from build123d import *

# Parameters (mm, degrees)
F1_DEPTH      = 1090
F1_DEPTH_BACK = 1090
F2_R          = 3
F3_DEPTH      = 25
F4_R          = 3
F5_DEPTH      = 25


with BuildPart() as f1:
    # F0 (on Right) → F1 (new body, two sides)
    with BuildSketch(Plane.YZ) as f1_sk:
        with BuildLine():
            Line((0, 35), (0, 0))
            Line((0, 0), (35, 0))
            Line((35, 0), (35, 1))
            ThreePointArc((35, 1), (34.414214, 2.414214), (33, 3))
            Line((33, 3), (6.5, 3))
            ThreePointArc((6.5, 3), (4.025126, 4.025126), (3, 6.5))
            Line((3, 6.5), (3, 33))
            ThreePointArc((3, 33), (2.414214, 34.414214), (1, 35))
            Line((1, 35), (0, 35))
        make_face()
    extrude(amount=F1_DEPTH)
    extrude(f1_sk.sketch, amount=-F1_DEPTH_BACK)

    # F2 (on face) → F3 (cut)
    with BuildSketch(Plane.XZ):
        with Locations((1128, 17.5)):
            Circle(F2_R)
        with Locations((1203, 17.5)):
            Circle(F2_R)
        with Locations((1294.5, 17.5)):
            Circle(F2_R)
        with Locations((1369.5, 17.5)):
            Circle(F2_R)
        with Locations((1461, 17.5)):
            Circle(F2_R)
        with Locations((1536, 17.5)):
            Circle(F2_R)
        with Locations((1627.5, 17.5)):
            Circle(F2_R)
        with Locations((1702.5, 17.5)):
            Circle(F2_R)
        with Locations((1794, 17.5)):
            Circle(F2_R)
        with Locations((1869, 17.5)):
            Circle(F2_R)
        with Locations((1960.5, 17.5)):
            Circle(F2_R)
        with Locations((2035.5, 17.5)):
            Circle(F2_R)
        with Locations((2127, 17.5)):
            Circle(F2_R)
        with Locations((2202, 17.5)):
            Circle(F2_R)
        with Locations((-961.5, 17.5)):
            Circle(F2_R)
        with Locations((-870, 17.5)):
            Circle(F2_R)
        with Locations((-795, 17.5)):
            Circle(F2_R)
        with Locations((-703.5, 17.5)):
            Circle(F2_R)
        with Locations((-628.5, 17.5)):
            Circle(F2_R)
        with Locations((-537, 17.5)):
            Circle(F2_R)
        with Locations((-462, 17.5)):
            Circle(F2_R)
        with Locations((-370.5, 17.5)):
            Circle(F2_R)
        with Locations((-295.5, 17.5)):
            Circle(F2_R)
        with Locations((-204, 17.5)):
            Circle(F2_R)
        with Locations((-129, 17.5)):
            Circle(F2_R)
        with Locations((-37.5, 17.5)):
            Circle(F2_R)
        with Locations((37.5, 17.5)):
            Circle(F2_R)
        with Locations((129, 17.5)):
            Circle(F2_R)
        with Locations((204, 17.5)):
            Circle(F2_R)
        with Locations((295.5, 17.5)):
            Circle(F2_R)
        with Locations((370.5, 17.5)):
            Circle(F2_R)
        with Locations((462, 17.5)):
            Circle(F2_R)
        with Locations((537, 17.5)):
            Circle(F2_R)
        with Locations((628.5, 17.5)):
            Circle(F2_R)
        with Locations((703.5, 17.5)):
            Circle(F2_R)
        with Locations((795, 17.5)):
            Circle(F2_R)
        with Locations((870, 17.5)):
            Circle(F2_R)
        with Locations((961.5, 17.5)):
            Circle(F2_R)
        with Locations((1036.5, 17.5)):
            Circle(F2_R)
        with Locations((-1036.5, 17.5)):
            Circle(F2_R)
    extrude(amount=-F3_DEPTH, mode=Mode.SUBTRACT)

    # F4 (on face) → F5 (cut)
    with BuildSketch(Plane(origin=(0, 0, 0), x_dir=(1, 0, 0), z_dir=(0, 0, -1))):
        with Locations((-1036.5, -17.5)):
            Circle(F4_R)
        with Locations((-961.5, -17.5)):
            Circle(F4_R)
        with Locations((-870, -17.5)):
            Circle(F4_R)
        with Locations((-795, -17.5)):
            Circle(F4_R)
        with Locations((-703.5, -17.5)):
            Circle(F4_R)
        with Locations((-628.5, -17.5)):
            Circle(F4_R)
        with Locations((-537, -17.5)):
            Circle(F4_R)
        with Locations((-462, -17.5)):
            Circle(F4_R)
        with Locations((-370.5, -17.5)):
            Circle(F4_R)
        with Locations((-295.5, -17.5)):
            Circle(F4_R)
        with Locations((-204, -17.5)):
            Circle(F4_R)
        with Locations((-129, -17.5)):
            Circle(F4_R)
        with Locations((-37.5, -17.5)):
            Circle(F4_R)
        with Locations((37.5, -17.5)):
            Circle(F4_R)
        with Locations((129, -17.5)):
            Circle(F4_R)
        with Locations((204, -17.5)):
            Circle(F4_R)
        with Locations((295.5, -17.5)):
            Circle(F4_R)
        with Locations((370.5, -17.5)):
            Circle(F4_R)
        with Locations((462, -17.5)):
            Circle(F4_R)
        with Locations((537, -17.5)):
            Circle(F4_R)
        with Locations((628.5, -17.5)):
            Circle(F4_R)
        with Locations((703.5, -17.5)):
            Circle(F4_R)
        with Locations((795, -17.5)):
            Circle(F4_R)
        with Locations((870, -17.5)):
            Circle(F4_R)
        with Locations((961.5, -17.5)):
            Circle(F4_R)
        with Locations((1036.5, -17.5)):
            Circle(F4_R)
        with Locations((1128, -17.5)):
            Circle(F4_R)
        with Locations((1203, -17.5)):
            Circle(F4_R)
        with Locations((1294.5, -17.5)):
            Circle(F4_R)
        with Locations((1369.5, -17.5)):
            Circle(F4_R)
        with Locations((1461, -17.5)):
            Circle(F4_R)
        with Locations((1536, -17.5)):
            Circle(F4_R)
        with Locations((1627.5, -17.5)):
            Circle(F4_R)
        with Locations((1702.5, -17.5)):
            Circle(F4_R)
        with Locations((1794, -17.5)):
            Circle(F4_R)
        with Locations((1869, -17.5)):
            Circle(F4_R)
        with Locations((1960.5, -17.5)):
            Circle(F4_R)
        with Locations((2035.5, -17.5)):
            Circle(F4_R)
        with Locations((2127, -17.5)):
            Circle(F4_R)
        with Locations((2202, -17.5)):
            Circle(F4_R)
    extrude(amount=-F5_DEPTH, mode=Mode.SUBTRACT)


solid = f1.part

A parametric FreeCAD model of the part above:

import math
import FreeCAD as App
import Part
import Sketcher

V = App.Vector
Q = App.Units.Quantity

doc = App.newDocument("Part")
body = doc.addObject("PartDesign::Body", "Body")

# Sketch on YZ plane
sketch1 = body.newObject("Sketcher::SketchObject", "Sketch")
sketch1.AttachmentSupport = (doc.getObject("YZ_Plane"), [""])
sketch1.MapMode = "FlatFace"
sketch1.addGeometry(Part.LineSegment(V(0, 35, 0), V(0, 0, 0)), False)
sketch1.addGeometry(Part.LineSegment(V(0, 0, 0), V(35, 0, 0)), False)
sketch1.addGeometry(Part.LineSegment(V(35, 0, 0), V(35, 1, 0)), False)
sketch1.addGeometry(Part.ArcOfCircle(Part.Circle(V(33, 1, 0), V(0, 0, 1), 2), math.radians(0), math.radians(90)), False)
sketch1.addGeometry(Part.LineSegment(V(33, 3, 0), V(6.5, 3, 0)), False)
sketch1.addGeometry(Part.ArcOfCircle(Part.Circle(V(6.5, 6.5, 0), V(0, 0, 1), 3.5), math.radians(180), math.radians(270)), False)
sketch1.addGeometry(Part.LineSegment(V(3, 6.5, 0), V(3, 33, 0)), False)
sketch1.addGeometry(Part.ArcOfCircle(Part.Circle(V(1, 33, 0), V(0, 0, 1), 2), math.radians(0), math.radians(90)), False)
sketch1.addGeometry(Part.LineSegment(V(1, 35, 0), V(0, 35, 0)), False)
sketch1.addConstraint(Sketcher.Constraint("Coincident", 0, 2, 1, 1))
sketch1.addConstraint(Sketcher.Constraint("Coincident", 1, 2, 2, 1))
sketch1.addConstraint(Sketcher.Constraint("Tangent", 2, 2, 3, 1))
sketch1.addConstraint(Sketcher.Constraint("Tangent", 3, 2, 4, 1))
sketch1.addConstraint(Sketcher.Constraint("Tangent", 4, 2, 5, 2))
sketch1.addConstraint(Sketcher.Constraint("Tangent", 5, 1, 6, 1))
sketch1.addConstraint(Sketcher.Constraint("Tangent", 6, 2, 7, 1))
sketch1.addConstraint(Sketcher.Constraint("Tangent", 7, 2, 8, 1))
sketch1.addConstraint(Sketcher.Constraint("Coincident", 8, 2, 0, 1))
sketch1.addConstraint(Sketcher.Constraint("Vertical", 0))
sketch1.addConstraint(Sketcher.Constraint("Horizontal", 1))
sketch1.addConstraint(Sketcher.Constraint("Vertical", 2))
sketch1.addConstraint(Sketcher.Constraint("Horizontal", 4))
sketch1.addConstraint(Sketcher.Constraint("Vertical", 6))
sketch1.addConstraint(Sketcher.Constraint("Horizontal", 8))
sketch1.addConstraint(Sketcher.Constraint("Coincident", 0, 2, -1, 1))
sketch1.addConstraint(Sketcher.Constraint("Equal", 3, 7))
sketch1.addConstraint(Sketcher.Constraint("Equal", 1, 0))
sketch1.addConstraint(Sketcher.Constraint("Equal", 8, 2))
sketch1.addConstraint(Sketcher.Constraint("Radius", 3, Q("1.999999 mm")))
sketch1.addConstraint(Sketcher.Constraint("Radius", 5, Q("3.499999 mm")))
sketch1.addConstraint(Sketcher.Constraint("DistanceX", 1, 1, 1, 2, Q("35 mm")))
sketch1.addConstraint(Sketcher.Constraint("DistanceX", 8, 2, 8, 1, Q("1 mm")))
pad1 = body.newObject("PartDesign::Pad", "Pad")
pad1.Profile = sketch1
pad1.Type = "TwoLengths"
pad1.Length = 1090
pad1.Length2 = 1090

# Sketch on XZ plane
sketch2 = body.newObject("Sketcher::SketchObject", "Sketch001")
sketch2.AttachmentSupport = (doc.getObject("XZ_Plane"), [""])
sketch2.MapMode = "FlatFace"
sketch2.addGeometry(Part.Circle(V(1128, 17.5, 0), V(0, 0, 1), 3), False)
sketch2.addGeometry(Part.Circle(V(1203, 17.5, 0), V(0, 0, 1), 3), False)
sketch2.addGeometry(Part.Circle(V(1294.5, 17.5, 0), V(0, 0, 1), 3), False)
sketch2.addGeometry(Part.Circle(V(1369.5, 17.5, 0), V(0, 0, 1), 3), False)
sketch2.addGeometry(Part.Circle(V(1461, 17.5, 0), V(0, 0, 1), 3), False)
sketch2.addGeometry(Part.Circle(V(1536, 17.5, 0), V(0, 0, 1), 3), False)
sketch2.addGeometry(Part.Circle(V(1627.5, 17.5, 0), V(0, 0, 1), 3), False)
sketch2.addGeometry(Part.Circle(V(1702.5, 17.5, 0), V(0, 0, 1), 3), False)
sketch2.addGeometry(Part.Circle(V(1794, 17.5, 0), V(0, 0, 1), 3), False)
sketch2.addGeometry(Part.Circle(V(1869, 17.5, 0), V(0, 0, 1), 3), False)
sketch2.addGeometry(Part.Circle(V(1960.5, 17.5, 0), V(0, 0, 1), 3), False)
sketch2.addGeometry(Part.Circle(V(2035.5, 17.5, 0), V(0, 0, 1), 3), False)
sketch2.addGeometry(Part.Circle(V(2127, 17.5, 0), V(0, 0, 1), 3), False)
sketch2.addGeometry(Part.Circle(V(2202, 17.5, 0), V(0, 0, 1), 3), False)
sketch2.addGeometry(Part.Circle(V(-961.5, 17.5, 0), V(0, 0, 1), 3), False)
sketch2.addGeometry(Part.Circle(V(-870, 17.5, 0), V(0, 0, 1), 3), False)
sketch2.addGeometry(Part.Circle(V(-795, 17.5, 0), V(0, 0, 1), 3), False)
sketch2.addGeometry(Part.Circle(V(-703.5, 17.5, 0), V(0, 0, 1), 3), False)
sketch2.addGeometry(Part.Circle(V(-628.5, 17.5, 0), V(0, 0, 1), 3), False)
sketch2.addGeometry(Part.Circle(V(-537, 17.5, 0), V(0, 0, 1), 3), False)
sketch2.addGeometry(Part.Circle(V(-462, 17.5, 0), V(0, 0, 1), 3), False)
sketch2.addGeometry(Part.Circle(V(-370.5, 17.5, 0), V(0, 0, 1), 3), False)
sketch2.addGeometry(Part.Circle(V(-295.5, 17.5, 0), V(0, 0, 1), 3), False)
sketch2.addGeometry(Part.Circle(V(-204, 17.5, 0), V(0, 0, 1), 3), False)
sketch2.addGeometry(Part.Circle(V(-129, 17.5, 0), V(0, 0, 1), 3), False)
sketch2.addGeometry(Part.Circle(V(-37.5, 17.5, 0), V(0, 0, 1), 3), False)
sketch2.addGeometry(Part.Circle(V(37.5, 17.5, 0), V(0, 0, 1), 3), False)
sketch2.addGeometry(Part.Circle(V(129, 17.5, 0), V(0, 0, 1), 3), False)
sketch2.addGeometry(Part.Circle(V(204, 17.5, 0), V(0, 0, 1), 3), False)
sketch2.addGeometry(Part.Circle(V(295.5, 17.5, 0), V(0, 0, 1), 3), False)
sketch2.addGeometry(Part.Circle(V(370.5, 17.5, 0), V(0, 0, 1), 3), False)
sketch2.addGeometry(Part.Circle(V(462, 17.5, 0), V(0, 0, 1), 3), False)
sketch2.addGeometry(Part.Circle(V(537, 17.5, 0), V(0, 0, 1), 3), False)
sketch2.addGeometry(Part.Circle(V(628.5, 17.5, 0), V(0, 0, 1), 3), False)
sketch2.addGeometry(Part.Circle(V(703.5, 17.5, 0), V(0, 0, 1), 3), False)
sketch2.addGeometry(Part.Circle(V(795, 17.5, 0), V(0, 0, 1), 3), False)
sketch2.addGeometry(Part.Circle(V(870, 17.5, 0), V(0, 0, 1), 3), False)
sketch2.addGeometry(Part.Circle(V(961.5, 17.5, 0), V(0, 0, 1), 3), False)
sketch2.addGeometry(Part.Circle(V(1036.5, 17.5, 0), V(0, 0, 1), 3), False)
sketch2.addGeometry(Part.Circle(V(-1036.5, 17.5, 0), V(0, 0, 1), 3), False)
sketch2.addConstraint(Sketcher.Constraint("Equal", 0, 1))
sketch2.addConstraint(Sketcher.Constraint("Equal", 1, 2))
sketch2.addConstraint(Sketcher.Constraint("Equal", 2, 3))
sketch2.addConstraint(Sketcher.Constraint("Equal", 3, 4))
sketch2.addConstraint(Sketcher.Constraint("Equal", 4, 5))
sketch2.addConstraint(Sketcher.Constraint("Equal", 5, 6))
sketch2.addConstraint(Sketcher.Constraint("Equal", 6, 7))
sketch2.addConstraint(Sketcher.Constraint("Equal", 7, 8))
sketch2.addConstraint(Sketcher.Constraint("Equal", 8, 9))
sketch2.addConstraint(Sketcher.Constraint("Equal", 9, 10))
sketch2.addConstraint(Sketcher.Constraint("Equal", 10, 11))
sketch2.addConstraint(Sketcher.Constraint("Equal", 11, 12))
sketch2.addConstraint(Sketcher.Constraint("Equal", 12, 13))
sketch2.addConstraint(Sketcher.Constraint("Equal", 13, 14))
sketch2.addConstraint(Sketcher.Constraint("Equal", 14, 15))
sketch2.addConstraint(Sketcher.Constraint("Equal", 15, 16))
sketch2.addConstraint(Sketcher.Constraint("Equal", 16, 17))
sketch2.addConstraint(Sketcher.Constraint("Equal", 17, 18))
sketch2.addConstraint(Sketcher.Constraint("Equal", 18, 19))
sketch2.addConstraint(Sketcher.Constraint("Equal", 19, 20))
sketch2.addConstraint(Sketcher.Constraint("Equal", 20, 21))
sketch2.addConstraint(Sketcher.Constraint("Equal", 21, 22))
sketch2.addConstraint(Sketcher.Constraint("Equal", 22, 23))
sketch2.addConstraint(Sketcher.Constraint("Equal", 23, 24))
sketch2.addConstraint(Sketcher.Constraint("Equal", 24, 25))
sketch2.addConstraint(Sketcher.Constraint("Equal", 25, 26))
sketch2.addConstraint(Sketcher.Constraint("Equal", 26, 27))
sketch2.addConstraint(Sketcher.Constraint("Equal", 27, 28))
sketch2.addConstraint(Sketcher.Constraint("Equal", 28, 29))
sketch2.addConstraint(Sketcher.Constraint("Equal", 29, 30))
sketch2.addConstraint(Sketcher.Constraint("Equal", 30, 31))
sketch2.addConstraint(Sketcher.Constraint("Equal", 31, 32))
sketch2.addConstraint(Sketcher.Constraint("Equal", 32, 33))
sketch2.addConstraint(Sketcher.Constraint("Equal", 33, 34))
sketch2.addConstraint(Sketcher.Constraint("Equal", 34, 35))
sketch2.addConstraint(Sketcher.Constraint("Equal", 35, 36))
sketch2.addConstraint(Sketcher.Constraint("Equal", 36, 37))
sketch2.addConstraint(Sketcher.Constraint("Equal", 37, 38))
sketch2.addConstraint(Sketcher.Constraint("Equal", 38, 39))
sketch2.addConstraint(Sketcher.Constraint("Symmetric", 25, 3, 26, 3, -2))
sketch2.addConstraint(Sketcher.Constraint("Symmetric", 24, 3, 27, 3, -2))
sketch2.addConstraint(Sketcher.Constraint("Symmetric", 23, 3, 28, 3, -2))
sketch2.addConstraint(Sketcher.Constraint("Symmetric", 22, 3, 29, 3, -2))
sketch2.addConstraint(Sketcher.Constraint("Symmetric", 21, 3, 30, 3, -2))
sketch2.addConstraint(Sketcher.Constraint("Symmetric", 20, 3, 31, 3, -2))
sketch2.addConstraint(Sketcher.Constraint("Symmetric", 19, 3, 32, 3, -2))
sketch2.addConstraint(Sketcher.Constraint("Symmetric", 18, 3, 33, 3, -2))
sketch2.addConstraint(Sketcher.Constraint("Symmetric", 17, 3, 34, 3, -2))
sketch2.addConstraint(Sketcher.Constraint("Symmetric", 16, 3, 35, 3, -2))
sketch2.addConstraint(Sketcher.Constraint("Symmetric", 15, 3, 36, 3, -2))
sketch2.addConstraint(Sketcher.Constraint("Symmetric", 14, 3, 37, 3, -2))
sketch2.addConstraint(Sketcher.Constraint("Symmetric", 38, 3, 39, 3, -2))
sketch2.addConstraint(Sketcher.Constraint("Horizontal", 0, 3, 1, 3))
sketch2.addConstraint(Sketcher.Constraint("Horizontal", 1, 3, 2, 3))
sketch2.addConstraint(Sketcher.Constraint("Horizontal", 2, 3, 3, 3))
sketch2.addConstraint(Sketcher.Constraint("Horizontal", 3, 3, 4, 3))
sketch2.addConstraint(Sketcher.Constraint("Horizontal", 4, 3, 5, 3))
sketch2.addConstraint(Sketcher.Constraint("Horizontal", 5, 3, 6, 3))
sketch2.addConstraint(Sketcher.Constraint("Horizontal", 6, 3, 7, 3))
sketch2.addConstraint(Sketcher.Constraint("Horizontal", 7, 3, 8, 3))
sketch2.addConstraint(Sketcher.Constraint("Horizontal", 8, 3, 9, 3))
sketch2.addConstraint(Sketcher.Constraint("Horizontal", 9, 3, 10, 3))
sketch2.addConstraint(Sketcher.Constraint("Horizontal", 10, 3, 11, 3))
sketch2.addConstraint(Sketcher.Constraint("Horizontal", 11, 3, 12, 3))
sketch2.addConstraint(Sketcher.Constraint("Horizontal", 12, 3, 13, 3))
sketch2.addConstraint(Sketcher.Constraint("Horizontal", 13, 3, 14, 3))
sketch2.addConstraint(Sketcher.Constraint("Horizontal", 14, 3, 15, 3))
sketch2.addConstraint(Sketcher.Constraint("Horizontal", 15, 3, 16, 3))
sketch2.addConstraint(Sketcher.Constraint("Horizontal", 16, 3, 17, 3))
sketch2.addConstraint(Sketcher.Constraint("Horizontal", 17, 3, 18, 3))
sketch2.addConstraint(Sketcher.Constraint("Horizontal", 18, 3, 19, 3))
sketch2.addConstraint(Sketcher.Constraint("Horizontal", 19, 3, 20, 3))
sketch2.addConstraint(Sketcher.Constraint("Horizontal", 20, 3, 21, 3))
sketch2.addConstraint(Sketcher.Constraint("Horizontal", 21, 3, 22, 3))
sketch2.addConstraint(Sketcher.Constraint("Horizontal", 22, 3, 23, 3))
sketch2.addConstraint(Sketcher.Constraint("Horizontal", 23, 3, 24, 3))
sketch2.addConstraint(Sketcher.Constraint("Horizontal", 24, 3, 25, 3))
sketch2.addConstraint(Sketcher.Constraint("Horizontal", 37, 3, 38, 3))
sketch2.addConstraint(Sketcher.Constraint("Diameter", 0, Q("6 mm")))
sketch2.addConstraint(Sketcher.Constraint("DistanceX", -1, 1, 0, 3, Q("1128 mm")))
sketch2.addConstraint(Sketcher.Constraint("DistanceX", -1, 1, 1, 3, Q("1203 mm")))
sketch2.addConstraint(Sketcher.Constraint("DistanceX", -1, 1, 4, 3, Q("1461 mm")))
sketch2.addConstraint(Sketcher.Constraint("DistanceX", -1, 1, 5, 3, Q("1536 mm")))
sketch2.addConstraint(Sketcher.Constraint("DistanceX", -1, 1, 8, 3, Q("1794 mm")))
sketch2.addConstraint(Sketcher.Constraint("DistanceX", -1, 1, 9, 3, Q("1869 mm")))
sketch2.addConstraint(Sketcher.Constraint("DistanceX", -1, 1, 12, 3, Q("2127 mm")))
sketch2.addConstraint(Sketcher.Constraint("DistanceX", -1, 1, 13, 3, Q("2202 mm")))
sketch2.addConstraint(Sketcher.Constraint("DistanceX", 15, 3, -1, 1, Q("870 mm")))
sketch2.addConstraint(Sketcher.Constraint("DistanceX", 16, 3, -1, 1, Q("795 mm")))
sketch2.addConstraint(Sketcher.Constraint("DistanceX", 19, 3, -1, 1, Q("537 mm")))
sketch2.addConstraint(Sketcher.Constraint("DistanceX", 20, 3, -1, 1, Q("462 mm")))
sketch2.addConstraint(Sketcher.Constraint("DistanceX", 23, 3, -1, 1, Q("204 mm")))
sketch2.addConstraint(Sketcher.Constraint("DistanceX", 24, 3, -1, 1, Q("129 mm")))
sketch2.addConstraint(Sketcher.Constraint("DistanceX", 2, 3, 3, 3, Q("75 mm")))
sketch2.addConstraint(Sketcher.Constraint("DistanceX", 3, 3, 6, 3, Q("258 mm")))
sketch2.addConstraint(Sketcher.Constraint("DistanceX", 6, 3, 7, 3, Q("75 mm")))
sketch2.addConstraint(Sketcher.Constraint("DistanceX", 7, 3, 10, 3, Q("258 mm")))
sketch2.addConstraint(Sketcher.Constraint("DistanceX", 10, 3, 11, 3, Q("75 mm")))
sketch2.addConstraint(Sketcher.Constraint("DistanceX", 14, 3, 2, 3, Q("2256 mm")))
sketch2.addConstraint(Sketcher.Constraint("DistanceX", 14, 3, 17, 3, Q("258 mm")))
sketch2.addConstraint(Sketcher.Constraint("DistanceX", 17, 3, 18, 3, Q("75 mm")))
sketch2.addConstraint(Sketcher.Constraint("DistanceX", 18, 3, 21, 3, Q("258 mm")))
sketch2.addConstraint(Sketcher.Constraint("DistanceX", 21, 3, 22, 3, Q("75 mm")))
sketch2.addConstraint(Sketcher.Constraint("DistanceX", 22, 3, 25, 3, Q("258 mm")))
sketch2.addConstraint(Sketcher.Constraint("DistanceX", 25, 3, 26, 3, Q("75 mm")))
sketch2.addConstraint(Sketcher.Constraint("DistanceX", 37, 3, 38, 3, Q("75 mm")))
sketch2.addConstraint(Sketcher.Constraint("DistanceY", -1, 1, 0, 3, Q("17.5 mm")))
pocket1 = body.newObject("PartDesign::Pocket", "Pocket")
pocket1.Profile = sketch2
pocket1.Length = 25

# Sketch on XY plane
sketch3 = body.newObject("Sketcher::SketchObject", "Sketch002")
sketch3.AttachmentSupport = (doc.getObject("XY_Plane"), [""])
sketch3.MapMode = "FlatFace"
sketch3.addGeometry(Part.Circle(V(-1036.5, 17.5, 0), V(0, 0, 1), 3), False)
sketch3.addGeometry(Part.Circle(V(-961.5, 17.5, 0), V(0, 0, 1), 3), False)
sketch3.addGeometry(Part.Circle(V(-870, 17.5, 0), V(0, 0, 1), 3), False)
sketch3.addGeometry(Part.Circle(V(-795, 17.5, 0), V(0, 0, 1), 3), False)
sketch3.addGeometry(Part.Circle(V(-703.5, 17.5, 0), V(0, 0, 1), 3), False)
sketch3.addGeometry(Part.Circle(V(-628.5, 17.5, 0), V(0, 0, 1), 3), False)
sketch3.addGeometry(Part.Circle(V(-537, 17.5, 0), V(0, 0, 1), 3), False)
sketch3.addGeometry(Part.Circle(V(-462, 17.5, 0), V(0, 0, 1), 3), False)
sketch3.addGeometry(Part.Circle(V(-370.5, 17.5, 0), V(0, 0, 1), 3), False)
sketch3.addGeometry(Part.Circle(V(-295.5, 17.5, 0), V(0, 0, 1), 3), False)
sketch3.addGeometry(Part.Circle(V(-204, 17.5, 0), V(0, 0, 1), 3), False)
sketch3.addGeometry(Part.Circle(V(-129, 17.5, 0), V(0, 0, 1), 3), False)
sketch3.addGeometry(Part.Circle(V(-37.5, 17.5, 0), V(0, 0, 1), 3), False)
sketch3.addGeometry(Part.Circle(V(37.5, 17.5, 0), V(0, 0, 1), 3), False)
sketch3.addGeometry(Part.Circle(V(129, 17.5, 0), V(0, 0, 1), 3), False)
sketch3.addGeometry(Part.Circle(V(204, 17.5, 0), V(0, 0, 1), 3), False)
sketch3.addGeometry(Part.Circle(V(295.5, 17.5, 0), V(0, 0, 1), 3), False)
sketch3.addGeometry(Part.Circle(V(370.5, 17.5, 0), V(0, 0, 1), 3), False)
sketch3.addGeometry(Part.Circle(V(462, 17.5, 0), V(0, 0, 1), 3), False)
sketch3.addGeometry(Part.Circle(V(537, 17.5, 0), V(0, 0, 1), 3), False)
sketch3.addGeometry(Part.Circle(V(628.5, 17.5, 0), V(0, 0, 1), 3), False)
sketch3.addGeometry(Part.Circle(V(703.5, 17.5, 0), V(0, 0, 1), 3), False)
sketch3.addGeometry(Part.Circle(V(795, 17.5, 0), V(0, 0, 1), 3), False)
sketch3.addGeometry(Part.Circle(V(870, 17.5, 0), V(0, 0, 1), 3), False)
sketch3.addGeometry(Part.Circle(V(961.5, 17.5, 0), V(0, 0, 1), 3), False)
sketch3.addGeometry(Part.Circle(V(1036.5, 17.5, 0), V(0, 0, 1), 3), False)
sketch3.addGeometry(Part.Circle(V(1128, 17.5, 0), V(0, 0, 1), 3), False)
sketch3.addGeometry(Part.Circle(V(1203, 17.5, 0), V(0, 0, 1), 3), False)
sketch3.addGeometry(Part.Circle(V(1294.5, 17.5, 0), V(0, 0, 1), 3), False)
sketch3.addGeometry(Part.Circle(V(1369.5, 17.5, 0), V(0, 0, 1), 3), False)
sketch3.addGeometry(Part.Circle(V(1461, 17.5, 0), V(0, 0, 1), 3), False)
sketch3.addGeometry(Part.Circle(V(1536, 17.5, 0), V(0, 0, 1), 3), False)
sketch3.addGeometry(Part.Circle(V(1627.5, 17.5, 0), V(0, 0, 1), 3), False)
sketch3.addGeometry(Part.Circle(V(1702.5, 17.5, 0), V(0, 0, 1), 3), False)
sketch3.addGeometry(Part.Circle(V(1794, 17.5, 0), V(0, 0, 1), 3), False)
sketch3.addGeometry(Part.Circle(V(1869, 17.5, 0), V(0, 0, 1), 3), False)
sketch3.addGeometry(Part.Circle(V(1960.5, 17.5, 0), V(0, 0, 1), 3), False)
sketch3.addGeometry(Part.Circle(V(2035.5, 17.5, 0), V(0, 0, 1), 3), False)
sketch3.addGeometry(Part.Circle(V(2127, 17.5, 0), V(0, 0, 1), 3), False)
sketch3.addGeometry(Part.Circle(V(2202, 17.5, 0), V(0, 0, 1), 3), False)
sketch3.addConstraint(Sketcher.Constraint("Equal", 0, 1))
sketch3.addConstraint(Sketcher.Constraint("Equal", 1, 2))
sketch3.addConstraint(Sketcher.Constraint("Equal", 2, 3))
sketch3.addConstraint(Sketcher.Constraint("Equal", 3, 4))
sketch3.addConstraint(Sketcher.Constraint("Equal", 4, 5))
sketch3.addConstraint(Sketcher.Constraint("Equal", 5, 6))
sketch3.addConstraint(Sketcher.Constraint("Equal", 6, 7))
sketch3.addConstraint(Sketcher.Constraint("Equal", 7, 8))
sketch3.addConstraint(Sketcher.Constraint("Equal", 8, 9))
sketch3.addConstraint(Sketcher.Constraint("Equal", 9, 10))
sketch3.addConstraint(Sketcher.Constraint("Equal", 10, 11))
sketch3.addConstraint(Sketcher.Constraint("Equal", 11, 12))
sketch3.addConstraint(Sketcher.Constraint("Equal", 12, 13))
sketch3.addConstraint(Sketcher.Constraint("Equal", 13, 14))
sketch3.addConstraint(Sketcher.Constraint("Equal", 14, 15))
sketch3.addConstraint(Sketcher.Constraint("Equal", 15, 16))
sketch3.addConstraint(Sketcher.Constraint("Equal", 16, 17))
sketch3.addConstraint(Sketcher.Constraint("Equal", 17, 18))
sketch3.addConstraint(Sketcher.Constraint("Equal", 18, 19))
sketch3.addConstraint(Sketcher.Constraint("Equal", 19, 20))
sketch3.addConstraint(Sketcher.Constraint("Equal", 20, 21))
sketch3.addConstraint(Sketcher.Constraint("Equal", 21, 22))
sketch3.addConstraint(Sketcher.Constraint("Equal", 22, 23))
sketch3.addConstraint(Sketcher.Constraint("Equal", 23, 24))
sketch3.addConstraint(Sketcher.Constraint("Equal", 24, 25))
sketch3.addConstraint(Sketcher.Constraint("Equal", 25, 26))
sketch3.addConstraint(Sketcher.Constraint("Equal", 26, 27))
sketch3.addConstraint(Sketcher.Constraint("Equal", 27, 28))
sketch3.addConstraint(Sketcher.Constraint("Equal", 28, 29))
sketch3.addConstraint(Sketcher.Constraint("Equal", 29, 30))
sketch3.addConstraint(Sketcher.Constraint("Equal", 30, 31))
sketch3.addConstraint(Sketcher.Constraint("Equal", 31, 32))
sketch3.addConstraint(Sketcher.Constraint("Equal", 32, 33))
sketch3.addConstraint(Sketcher.Constraint("Equal", 33, 34))
sketch3.addConstraint(Sketcher.Constraint("Equal", 34, 35))
sketch3.addConstraint(Sketcher.Constraint("Equal", 35, 36))
sketch3.addConstraint(Sketcher.Constraint("Equal", 36, 37))
sketch3.addConstraint(Sketcher.Constraint("Equal", 37, 38))
sketch3.addConstraint(Sketcher.Constraint("Equal", 38, 39))
sketch3.addConstraint(Sketcher.Constraint("Symmetric", 12, 3, 13, 3, -2))
sketch3.addConstraint(Sketcher.Constraint("Symmetric", 11, 3, 14, 3, -2))
sketch3.addConstraint(Sketcher.Constraint("Symmetric", 10, 3, 15, 3, -2))
sketch3.addConstraint(Sketcher.Constraint("Symmetric", 9, 3, 16, 3, -2))
sketch3.addConstraint(Sketcher.Constraint("Symmetric", 8, 3, 17, 3, -2))
sketch3.addConstraint(Sketcher.Constraint("Symmetric", 7, 3, 18, 3, -2))
sketch3.addConstraint(Sketcher.Constraint("Symmetric", 6, 3, 19, 3, -2))
sketch3.addConstraint(Sketcher.Constraint("Symmetric", 5, 3, 20, 3, -2))
sketch3.addConstraint(Sketcher.Constraint("Symmetric", 4, 3, 21, 3, -2))
sketch3.addConstraint(Sketcher.Constraint("Symmetric", 3, 3, 22, 3, -2))
sketch3.addConstraint(Sketcher.Constraint("Symmetric", 2, 3, 23, 3, -2))
sketch3.addConstraint(Sketcher.Constraint("Symmetric", 1, 3, 24, 3, -2))
sketch3.addConstraint(Sketcher.Constraint("Symmetric", 0, 3, 25, 3, -2))
sketch3.addConstraint(Sketcher.Constraint("Horizontal", 0, 3, 1, 3))
sketch3.addConstraint(Sketcher.Constraint("Horizontal", 1, 3, 2, 3))
sketch3.addConstraint(Sketcher.Constraint("Horizontal", 2, 3, 3, 3))
sketch3.addConstraint(Sketcher.Constraint("Horizontal", 3, 3, 4, 3))
sketch3.addConstraint(Sketcher.Constraint("Horizontal", 4, 3, 5, 3))
sketch3.addConstraint(Sketcher.Constraint("Horizontal", 5, 3, 6, 3))
sketch3.addConstraint(Sketcher.Constraint("Horizontal", 6, 3, 7, 3))
sketch3.addConstraint(Sketcher.Constraint("Horizontal", 7, 3, 8, 3))
sketch3.addConstraint(Sketcher.Constraint("Horizontal", 8, 3, 9, 3))
sketch3.addConstraint(Sketcher.Constraint("Horizontal", 9, 3, 10, 3))
sketch3.addConstraint(Sketcher.Constraint("Horizontal", 10, 3, 11, 3))
sketch3.addConstraint(Sketcher.Constraint("Horizontal", 11, 3, 12, 3))
sketch3.addConstraint(Sketcher.Constraint("Horizontal", 25, 3, 26, 3))
sketch3.addConstraint(Sketcher.Constraint("Horizontal", 26, 3, 27, 3))
sketch3.addConstraint(Sketcher.Constraint("Horizontal", 27, 3, 28, 3))
sketch3.addConstraint(Sketcher.Constraint("Horizontal", 28, 3, 29, 3))
sketch3.addConstraint(Sketcher.Constraint("Horizontal", 29, 3, 30, 3))
sketch3.addConstraint(Sketcher.Constraint("Horizontal", 30, 3, 31, 3))
sketch3.addConstraint(Sketcher.Constraint("Horizontal", 31, 3, 32, 3))
sketch3.addConstraint(Sketcher.Constraint("Horizontal", 32, 3, 33, 3))
sketch3.addConstraint(Sketcher.Constraint("Horizontal", 33, 3, 34, 3))
sketch3.addConstraint(Sketcher.Constraint("Horizontal", 34, 3, 35, 3))
sketch3.addConstraint(Sketcher.Constraint("Horizontal", 35, 3, 36, 3))
sketch3.addConstraint(Sketcher.Constraint("Horizontal", 36, 3, 37, 3))
sketch3.addConstraint(Sketcher.Constraint("Horizontal", 37, 3, 38, 3))
sketch3.addConstraint(Sketcher.Constraint("Horizontal", 38, 3, 39, 3))
sketch3.addConstraint(Sketcher.Constraint("Diameter", 0, Q("6 mm")))
sketch3.addConstraint(Sketcher.Constraint("DistanceX", 2, 3, -1, 1, Q("870 mm")))
sketch3.addConstraint(Sketcher.Constraint("DistanceX", 3, 3, -1, 1, Q("795 mm")))
sketch3.addConstraint(Sketcher.Constraint("DistanceX", 6, 3, -1, 1, Q("537 mm")))
sketch3.addConstraint(Sketcher.Constraint("DistanceX", 7, 3, -1, 1, Q("462 mm")))
sketch3.addConstraint(Sketcher.Constraint("DistanceX", 10, 3, -1, 1, Q("204 mm")))
sketch3.addConstraint(Sketcher.Constraint("DistanceX", 11, 3, -1, 1, Q("129 mm")))
sketch3.addConstraint(Sketcher.Constraint("DistanceX", -1, 1, 26, 3, Q("1128 mm")))
sketch3.addConstraint(Sketcher.Constraint("DistanceX", -1, 1, 27, 3, Q("1203 mm")))
sketch3.addConstraint(Sketcher.Constraint("DistanceX", -1, 1, 30, 3, Q("1461 mm")))
sketch3.addConstraint(Sketcher.Constraint("DistanceX", -1, 1, 31, 3, Q("1536 mm")))
sketch3.addConstraint(Sketcher.Constraint("DistanceX", -1, 1, 34, 3, Q("1794 mm")))
sketch3.addConstraint(Sketcher.Constraint("DistanceX", -1, 1, 35, 3, Q("1869 mm")))
sketch3.addConstraint(Sketcher.Constraint("DistanceX", -1, 1, 38, 3, Q("2127 mm")))
sketch3.addConstraint(Sketcher.Constraint("DistanceX", -1, 1, 39, 3, Q("2202 mm")))
sketch3.addConstraint(Sketcher.Constraint("DistanceX", 0, 3, 1, 3, Q("75 mm")))
sketch3.addConstraint(Sketcher.Constraint("DistanceX", 1, 3, 4, 3, Q("258 mm")))
sketch3.addConstraint(Sketcher.Constraint("DistanceX", 4, 3, 5, 3, Q("75 mm")))
sketch3.addConstraint(Sketcher.Constraint("DistanceX", 5, 3, 8, 3, Q("258 mm")))
sketch3.addConstraint(Sketcher.Constraint("DistanceX", 8, 3, 9, 3, Q("75 mm")))
sketch3.addConstraint(Sketcher.Constraint("DistanceX", 9, 3, 12, 3, Q("258 mm")))
sketch3.addConstraint(Sketcher.Constraint("DistanceX", 12, 3, 13, 3, Q("75 mm")))
sketch3.addConstraint(Sketcher.Constraint("DistanceX", 25, 3, 28, 3, Q("258 mm")))
sketch3.addConstraint(Sketcher.Constraint("DistanceX", 28, 3, 29, 3, Q("75 mm")))
sketch3.addConstraint(Sketcher.Constraint("DistanceX", 29, 3, 32, 3, Q("258 mm")))
sketch3.addConstraint(Sketcher.Constraint("DistanceX", 32, 3, 33, 3, Q("75 mm")))
sketch3.addConstraint(Sketcher.Constraint("DistanceX", 33, 3, 36, 3, Q("258 mm")))
sketch3.addConstraint(Sketcher.Constraint("DistanceX", 36, 3, 37, 3, Q("75 mm")))
sketch3.addConstraint(Sketcher.Constraint("DistanceY", -1, 1, 0, 3, Q("17.5 mm")))
pocket2 = body.newObject("PartDesign::Pocket", "Pocket001")
pocket2.Profile = sketch3
pocket2.Length = 25
pocket2.Reversed = True

doc.recompute()
